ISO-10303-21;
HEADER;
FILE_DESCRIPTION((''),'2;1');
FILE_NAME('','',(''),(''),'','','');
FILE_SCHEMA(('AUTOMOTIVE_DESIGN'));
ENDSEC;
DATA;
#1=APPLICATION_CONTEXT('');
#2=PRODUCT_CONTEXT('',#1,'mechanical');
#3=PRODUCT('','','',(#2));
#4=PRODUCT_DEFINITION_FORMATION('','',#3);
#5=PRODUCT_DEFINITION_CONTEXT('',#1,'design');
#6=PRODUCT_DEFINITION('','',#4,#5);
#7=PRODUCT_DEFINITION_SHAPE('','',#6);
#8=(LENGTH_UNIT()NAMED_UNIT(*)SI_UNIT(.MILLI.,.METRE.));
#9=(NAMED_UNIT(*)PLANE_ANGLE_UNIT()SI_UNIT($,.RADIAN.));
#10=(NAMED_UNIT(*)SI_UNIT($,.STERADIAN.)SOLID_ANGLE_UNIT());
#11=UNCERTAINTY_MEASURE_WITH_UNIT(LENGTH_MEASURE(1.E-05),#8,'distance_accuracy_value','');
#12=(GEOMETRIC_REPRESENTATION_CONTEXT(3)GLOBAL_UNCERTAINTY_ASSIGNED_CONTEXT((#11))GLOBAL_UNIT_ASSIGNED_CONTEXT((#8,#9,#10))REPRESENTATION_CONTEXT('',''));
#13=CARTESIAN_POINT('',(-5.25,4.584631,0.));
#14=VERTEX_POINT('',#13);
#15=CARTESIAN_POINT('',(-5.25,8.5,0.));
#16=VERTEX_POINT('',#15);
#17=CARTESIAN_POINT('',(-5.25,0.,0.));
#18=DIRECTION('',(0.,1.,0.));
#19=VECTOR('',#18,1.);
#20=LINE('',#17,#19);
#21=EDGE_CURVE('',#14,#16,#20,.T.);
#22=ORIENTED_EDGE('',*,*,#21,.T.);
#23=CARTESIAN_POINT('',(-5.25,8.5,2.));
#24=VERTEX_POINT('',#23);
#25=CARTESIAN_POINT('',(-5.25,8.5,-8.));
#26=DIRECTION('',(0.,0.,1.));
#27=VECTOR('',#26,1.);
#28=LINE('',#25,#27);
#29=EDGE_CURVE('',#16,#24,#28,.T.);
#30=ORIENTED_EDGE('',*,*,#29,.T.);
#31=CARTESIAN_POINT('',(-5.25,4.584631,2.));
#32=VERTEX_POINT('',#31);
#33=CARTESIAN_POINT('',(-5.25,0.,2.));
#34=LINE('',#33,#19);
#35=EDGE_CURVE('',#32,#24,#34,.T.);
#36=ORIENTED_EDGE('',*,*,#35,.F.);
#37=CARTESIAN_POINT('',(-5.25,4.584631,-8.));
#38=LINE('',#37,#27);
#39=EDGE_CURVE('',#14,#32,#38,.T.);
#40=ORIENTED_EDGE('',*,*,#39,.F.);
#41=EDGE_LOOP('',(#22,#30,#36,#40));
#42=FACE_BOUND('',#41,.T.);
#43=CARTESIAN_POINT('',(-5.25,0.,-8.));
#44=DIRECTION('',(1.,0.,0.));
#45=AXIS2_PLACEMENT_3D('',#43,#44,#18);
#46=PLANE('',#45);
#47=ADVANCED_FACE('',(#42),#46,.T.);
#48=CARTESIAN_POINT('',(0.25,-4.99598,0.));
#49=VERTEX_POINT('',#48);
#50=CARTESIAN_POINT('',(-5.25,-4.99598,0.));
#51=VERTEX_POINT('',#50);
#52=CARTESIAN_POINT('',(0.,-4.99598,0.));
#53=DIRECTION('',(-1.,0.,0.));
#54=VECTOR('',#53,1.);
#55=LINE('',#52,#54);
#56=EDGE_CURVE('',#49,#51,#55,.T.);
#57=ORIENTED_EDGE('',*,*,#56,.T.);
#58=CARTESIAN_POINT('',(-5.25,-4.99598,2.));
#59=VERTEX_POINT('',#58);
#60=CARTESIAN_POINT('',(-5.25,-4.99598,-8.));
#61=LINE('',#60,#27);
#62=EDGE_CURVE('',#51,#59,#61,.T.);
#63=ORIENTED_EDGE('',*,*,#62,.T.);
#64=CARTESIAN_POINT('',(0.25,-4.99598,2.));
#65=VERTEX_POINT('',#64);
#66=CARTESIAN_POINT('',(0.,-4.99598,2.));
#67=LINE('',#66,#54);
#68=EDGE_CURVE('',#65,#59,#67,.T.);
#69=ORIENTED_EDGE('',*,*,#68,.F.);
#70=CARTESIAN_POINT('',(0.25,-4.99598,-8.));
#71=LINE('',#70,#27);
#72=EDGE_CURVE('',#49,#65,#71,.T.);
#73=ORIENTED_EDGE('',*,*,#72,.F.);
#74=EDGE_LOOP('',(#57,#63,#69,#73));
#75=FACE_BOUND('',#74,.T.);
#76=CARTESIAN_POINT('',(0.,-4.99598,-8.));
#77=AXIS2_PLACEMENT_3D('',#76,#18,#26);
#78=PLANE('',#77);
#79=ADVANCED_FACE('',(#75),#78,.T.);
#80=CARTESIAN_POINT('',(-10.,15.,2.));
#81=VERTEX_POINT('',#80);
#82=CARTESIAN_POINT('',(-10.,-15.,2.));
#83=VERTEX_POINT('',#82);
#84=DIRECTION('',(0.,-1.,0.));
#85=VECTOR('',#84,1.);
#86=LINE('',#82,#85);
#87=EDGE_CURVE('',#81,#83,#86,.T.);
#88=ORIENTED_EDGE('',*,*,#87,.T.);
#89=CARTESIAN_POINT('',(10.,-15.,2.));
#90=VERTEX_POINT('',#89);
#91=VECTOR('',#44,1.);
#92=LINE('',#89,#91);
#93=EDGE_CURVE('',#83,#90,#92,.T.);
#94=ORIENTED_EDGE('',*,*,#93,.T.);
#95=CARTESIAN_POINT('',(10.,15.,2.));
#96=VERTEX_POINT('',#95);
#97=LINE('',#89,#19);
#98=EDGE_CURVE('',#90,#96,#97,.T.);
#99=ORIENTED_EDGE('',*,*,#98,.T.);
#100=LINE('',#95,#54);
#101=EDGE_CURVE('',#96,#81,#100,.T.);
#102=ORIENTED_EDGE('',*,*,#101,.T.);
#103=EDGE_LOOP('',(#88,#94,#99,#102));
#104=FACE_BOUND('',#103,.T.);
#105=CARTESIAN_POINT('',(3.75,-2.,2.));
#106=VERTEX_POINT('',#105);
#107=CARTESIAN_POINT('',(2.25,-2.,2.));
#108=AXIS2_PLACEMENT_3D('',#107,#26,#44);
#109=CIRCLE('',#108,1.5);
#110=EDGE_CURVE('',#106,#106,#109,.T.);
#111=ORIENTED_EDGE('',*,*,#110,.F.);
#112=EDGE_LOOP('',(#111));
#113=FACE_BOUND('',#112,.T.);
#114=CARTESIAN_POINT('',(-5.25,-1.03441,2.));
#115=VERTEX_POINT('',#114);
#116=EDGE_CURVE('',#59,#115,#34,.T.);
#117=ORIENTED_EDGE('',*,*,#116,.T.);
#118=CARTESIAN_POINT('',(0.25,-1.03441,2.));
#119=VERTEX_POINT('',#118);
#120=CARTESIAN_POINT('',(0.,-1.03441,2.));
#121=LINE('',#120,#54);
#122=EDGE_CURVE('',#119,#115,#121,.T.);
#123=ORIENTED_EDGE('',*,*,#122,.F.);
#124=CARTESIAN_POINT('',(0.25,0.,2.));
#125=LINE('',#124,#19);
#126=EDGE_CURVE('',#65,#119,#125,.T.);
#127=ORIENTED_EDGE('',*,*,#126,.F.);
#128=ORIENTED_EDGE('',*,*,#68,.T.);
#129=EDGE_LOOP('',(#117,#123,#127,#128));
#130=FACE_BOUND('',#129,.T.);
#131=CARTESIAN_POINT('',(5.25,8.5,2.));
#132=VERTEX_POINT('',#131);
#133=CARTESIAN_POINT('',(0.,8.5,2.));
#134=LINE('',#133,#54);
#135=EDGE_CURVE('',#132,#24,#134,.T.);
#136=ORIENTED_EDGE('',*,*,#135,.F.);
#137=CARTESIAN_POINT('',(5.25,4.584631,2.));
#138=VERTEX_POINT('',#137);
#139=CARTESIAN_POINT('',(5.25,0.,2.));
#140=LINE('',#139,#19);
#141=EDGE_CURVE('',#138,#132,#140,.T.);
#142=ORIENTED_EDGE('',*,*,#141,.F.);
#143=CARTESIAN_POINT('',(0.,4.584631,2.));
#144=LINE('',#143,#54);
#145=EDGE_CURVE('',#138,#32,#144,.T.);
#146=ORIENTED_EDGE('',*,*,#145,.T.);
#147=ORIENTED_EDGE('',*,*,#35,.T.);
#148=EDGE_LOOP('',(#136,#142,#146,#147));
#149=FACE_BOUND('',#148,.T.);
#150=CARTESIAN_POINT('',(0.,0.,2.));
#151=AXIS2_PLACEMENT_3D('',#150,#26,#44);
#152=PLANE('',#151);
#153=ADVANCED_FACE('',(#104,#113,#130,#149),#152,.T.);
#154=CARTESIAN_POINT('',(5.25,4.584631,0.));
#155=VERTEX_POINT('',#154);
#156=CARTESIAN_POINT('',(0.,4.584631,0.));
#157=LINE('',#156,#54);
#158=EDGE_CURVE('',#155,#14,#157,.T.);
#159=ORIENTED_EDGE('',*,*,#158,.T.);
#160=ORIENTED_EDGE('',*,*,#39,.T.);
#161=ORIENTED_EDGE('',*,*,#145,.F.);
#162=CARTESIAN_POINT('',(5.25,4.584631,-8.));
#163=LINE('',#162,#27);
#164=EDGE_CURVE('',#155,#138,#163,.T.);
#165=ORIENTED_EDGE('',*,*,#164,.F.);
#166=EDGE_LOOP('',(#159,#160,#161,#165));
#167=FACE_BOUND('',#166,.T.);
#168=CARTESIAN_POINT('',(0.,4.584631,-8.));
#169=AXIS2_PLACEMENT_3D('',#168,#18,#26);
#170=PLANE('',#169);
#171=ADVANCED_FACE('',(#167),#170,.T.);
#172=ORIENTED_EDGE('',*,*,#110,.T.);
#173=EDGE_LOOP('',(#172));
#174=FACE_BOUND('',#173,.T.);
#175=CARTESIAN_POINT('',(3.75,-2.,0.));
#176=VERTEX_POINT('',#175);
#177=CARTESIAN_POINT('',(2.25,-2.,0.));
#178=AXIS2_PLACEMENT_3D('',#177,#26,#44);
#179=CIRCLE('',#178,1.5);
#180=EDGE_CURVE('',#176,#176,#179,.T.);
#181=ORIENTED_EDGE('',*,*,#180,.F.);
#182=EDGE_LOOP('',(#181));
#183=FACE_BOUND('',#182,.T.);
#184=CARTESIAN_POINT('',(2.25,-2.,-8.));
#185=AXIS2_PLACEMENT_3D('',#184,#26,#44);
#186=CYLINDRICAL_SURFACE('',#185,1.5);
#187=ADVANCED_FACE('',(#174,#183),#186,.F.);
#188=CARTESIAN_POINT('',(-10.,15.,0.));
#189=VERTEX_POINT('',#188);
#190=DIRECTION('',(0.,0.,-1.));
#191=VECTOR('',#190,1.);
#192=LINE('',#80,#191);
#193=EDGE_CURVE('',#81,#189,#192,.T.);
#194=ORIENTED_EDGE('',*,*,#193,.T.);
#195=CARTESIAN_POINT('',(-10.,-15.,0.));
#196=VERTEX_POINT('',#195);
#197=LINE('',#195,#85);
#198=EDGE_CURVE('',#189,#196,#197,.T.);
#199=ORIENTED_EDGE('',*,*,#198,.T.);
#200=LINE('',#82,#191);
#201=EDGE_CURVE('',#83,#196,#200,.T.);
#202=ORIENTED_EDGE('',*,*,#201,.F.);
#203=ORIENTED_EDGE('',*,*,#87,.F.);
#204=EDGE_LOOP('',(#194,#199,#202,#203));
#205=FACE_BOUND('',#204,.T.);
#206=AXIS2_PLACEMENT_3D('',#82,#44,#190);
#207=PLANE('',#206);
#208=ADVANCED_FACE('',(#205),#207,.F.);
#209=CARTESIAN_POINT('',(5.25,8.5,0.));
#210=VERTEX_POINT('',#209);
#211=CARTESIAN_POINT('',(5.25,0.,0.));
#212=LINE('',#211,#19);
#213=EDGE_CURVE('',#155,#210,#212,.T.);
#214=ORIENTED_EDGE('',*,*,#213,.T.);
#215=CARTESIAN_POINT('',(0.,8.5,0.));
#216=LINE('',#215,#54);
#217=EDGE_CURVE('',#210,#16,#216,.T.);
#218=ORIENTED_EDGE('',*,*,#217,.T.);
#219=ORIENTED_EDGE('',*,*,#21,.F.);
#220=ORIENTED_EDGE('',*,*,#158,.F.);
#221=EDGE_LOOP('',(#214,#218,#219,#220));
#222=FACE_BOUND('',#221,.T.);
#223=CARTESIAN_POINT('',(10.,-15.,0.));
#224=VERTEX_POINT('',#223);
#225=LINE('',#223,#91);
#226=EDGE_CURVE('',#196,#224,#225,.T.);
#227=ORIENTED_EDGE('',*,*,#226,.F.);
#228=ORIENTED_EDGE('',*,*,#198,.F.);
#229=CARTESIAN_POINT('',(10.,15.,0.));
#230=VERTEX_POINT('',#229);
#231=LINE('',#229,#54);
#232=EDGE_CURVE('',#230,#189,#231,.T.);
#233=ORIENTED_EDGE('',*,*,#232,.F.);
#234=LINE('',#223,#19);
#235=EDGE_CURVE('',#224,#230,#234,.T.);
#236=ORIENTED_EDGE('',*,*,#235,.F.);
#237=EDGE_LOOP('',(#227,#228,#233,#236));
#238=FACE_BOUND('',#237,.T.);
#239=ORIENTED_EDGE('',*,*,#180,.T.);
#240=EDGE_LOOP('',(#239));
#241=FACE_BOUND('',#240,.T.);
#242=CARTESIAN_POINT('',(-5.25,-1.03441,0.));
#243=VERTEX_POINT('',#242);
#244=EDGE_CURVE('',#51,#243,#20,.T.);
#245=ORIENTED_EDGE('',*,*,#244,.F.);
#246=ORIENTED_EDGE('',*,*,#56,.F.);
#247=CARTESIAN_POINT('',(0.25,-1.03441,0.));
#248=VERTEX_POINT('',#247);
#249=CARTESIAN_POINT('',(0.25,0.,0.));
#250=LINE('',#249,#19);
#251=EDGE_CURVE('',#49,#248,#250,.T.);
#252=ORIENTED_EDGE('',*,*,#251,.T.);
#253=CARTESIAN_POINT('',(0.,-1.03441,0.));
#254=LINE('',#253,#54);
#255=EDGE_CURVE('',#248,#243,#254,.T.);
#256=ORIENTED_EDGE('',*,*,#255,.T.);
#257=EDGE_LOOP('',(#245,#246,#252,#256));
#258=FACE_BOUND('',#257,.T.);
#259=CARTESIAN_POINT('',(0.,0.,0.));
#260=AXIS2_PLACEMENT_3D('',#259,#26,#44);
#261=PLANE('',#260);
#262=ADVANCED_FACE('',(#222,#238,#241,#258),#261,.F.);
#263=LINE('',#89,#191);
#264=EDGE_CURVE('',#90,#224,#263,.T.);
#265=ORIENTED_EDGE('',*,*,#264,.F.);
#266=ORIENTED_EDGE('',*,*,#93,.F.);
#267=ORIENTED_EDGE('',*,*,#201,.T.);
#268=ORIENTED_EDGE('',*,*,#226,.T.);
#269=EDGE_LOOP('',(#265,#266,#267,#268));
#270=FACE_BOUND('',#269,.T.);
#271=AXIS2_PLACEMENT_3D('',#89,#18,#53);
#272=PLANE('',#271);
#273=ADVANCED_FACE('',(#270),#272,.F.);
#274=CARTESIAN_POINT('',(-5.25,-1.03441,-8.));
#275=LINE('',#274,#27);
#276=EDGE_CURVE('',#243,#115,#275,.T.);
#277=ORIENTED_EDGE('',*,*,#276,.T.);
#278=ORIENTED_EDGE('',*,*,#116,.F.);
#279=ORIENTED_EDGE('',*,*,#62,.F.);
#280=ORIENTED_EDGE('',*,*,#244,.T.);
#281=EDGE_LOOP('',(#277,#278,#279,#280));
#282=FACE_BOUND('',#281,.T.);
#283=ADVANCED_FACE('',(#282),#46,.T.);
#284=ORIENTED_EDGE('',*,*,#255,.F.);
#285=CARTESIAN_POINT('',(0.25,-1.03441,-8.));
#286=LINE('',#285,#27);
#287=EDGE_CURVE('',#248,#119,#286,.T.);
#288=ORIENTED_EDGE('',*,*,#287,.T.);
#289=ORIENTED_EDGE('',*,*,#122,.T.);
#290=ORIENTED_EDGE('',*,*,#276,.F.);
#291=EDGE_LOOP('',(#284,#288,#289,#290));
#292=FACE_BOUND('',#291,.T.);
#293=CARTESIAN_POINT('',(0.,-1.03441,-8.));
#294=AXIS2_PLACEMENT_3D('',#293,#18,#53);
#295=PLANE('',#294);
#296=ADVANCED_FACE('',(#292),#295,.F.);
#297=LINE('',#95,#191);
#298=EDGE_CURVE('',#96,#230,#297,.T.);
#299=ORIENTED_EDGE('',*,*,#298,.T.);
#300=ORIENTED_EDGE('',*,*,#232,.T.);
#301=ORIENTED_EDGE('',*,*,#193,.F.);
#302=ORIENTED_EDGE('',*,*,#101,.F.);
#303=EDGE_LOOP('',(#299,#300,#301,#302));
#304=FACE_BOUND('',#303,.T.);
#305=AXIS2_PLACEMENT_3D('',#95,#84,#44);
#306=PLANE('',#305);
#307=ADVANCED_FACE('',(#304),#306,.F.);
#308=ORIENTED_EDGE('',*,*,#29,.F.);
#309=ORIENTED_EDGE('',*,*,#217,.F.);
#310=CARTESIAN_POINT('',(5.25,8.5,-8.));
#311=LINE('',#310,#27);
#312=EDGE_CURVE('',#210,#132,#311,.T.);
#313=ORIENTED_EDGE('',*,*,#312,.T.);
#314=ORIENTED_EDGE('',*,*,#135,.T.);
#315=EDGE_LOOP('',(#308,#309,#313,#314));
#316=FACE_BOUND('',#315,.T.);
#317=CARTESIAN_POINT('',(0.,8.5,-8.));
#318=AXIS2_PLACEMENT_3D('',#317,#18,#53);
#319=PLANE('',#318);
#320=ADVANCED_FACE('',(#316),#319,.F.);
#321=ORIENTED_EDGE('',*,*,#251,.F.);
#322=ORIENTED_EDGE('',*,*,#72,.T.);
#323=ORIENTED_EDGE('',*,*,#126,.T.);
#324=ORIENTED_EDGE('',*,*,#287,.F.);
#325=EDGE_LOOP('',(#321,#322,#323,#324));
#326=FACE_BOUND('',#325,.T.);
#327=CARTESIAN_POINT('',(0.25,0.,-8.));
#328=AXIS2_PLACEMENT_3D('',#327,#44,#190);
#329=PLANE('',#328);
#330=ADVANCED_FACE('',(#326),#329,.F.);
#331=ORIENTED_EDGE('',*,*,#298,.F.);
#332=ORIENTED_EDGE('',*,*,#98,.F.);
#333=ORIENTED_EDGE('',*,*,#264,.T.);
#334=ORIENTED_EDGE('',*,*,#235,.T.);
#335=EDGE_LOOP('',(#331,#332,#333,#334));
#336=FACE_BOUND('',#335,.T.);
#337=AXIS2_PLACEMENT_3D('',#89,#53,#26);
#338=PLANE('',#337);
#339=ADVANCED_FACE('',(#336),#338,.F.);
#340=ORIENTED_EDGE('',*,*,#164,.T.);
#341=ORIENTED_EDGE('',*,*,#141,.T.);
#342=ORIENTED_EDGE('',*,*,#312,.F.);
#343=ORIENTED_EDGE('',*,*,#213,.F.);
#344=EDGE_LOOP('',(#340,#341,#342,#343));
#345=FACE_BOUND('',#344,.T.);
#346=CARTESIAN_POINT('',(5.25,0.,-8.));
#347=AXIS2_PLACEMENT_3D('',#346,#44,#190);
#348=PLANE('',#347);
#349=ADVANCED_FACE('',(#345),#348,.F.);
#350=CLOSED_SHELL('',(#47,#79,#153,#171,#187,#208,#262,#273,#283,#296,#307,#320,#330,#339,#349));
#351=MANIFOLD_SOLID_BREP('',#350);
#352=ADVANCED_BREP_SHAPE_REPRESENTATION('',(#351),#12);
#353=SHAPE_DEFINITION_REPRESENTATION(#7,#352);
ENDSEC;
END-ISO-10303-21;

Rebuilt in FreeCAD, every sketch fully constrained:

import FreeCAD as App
import Part
import Sketcher

V = App.Vector
Q = App.Units.Quantity

doc = App.newDocument("Part")
body = doc.addObject("PartDesign::Body", "Body")

# Sketch on XY plane
sketch1 = body.newObject("Sketcher::SketchObject", "Sketch")
sketch1.AttachmentSupport = (doc.getObject("XY_Plane"), [""])
sketch1.MapMode = "FlatFace"
sketch1.addGeometry([
    Part.LineSegment(V(-10, 15, 0), V(-10, -15, 0)),
    Part.LineSegment(V(-10, -15, 0), V(10, -15, 0)),
    Part.LineSegment(V(10, -15, 0), V(10, 15, 0)),
    Part.LineSegment(V(10, 15, 0), V(-10, 15, 0)),
], False)
sketch1.addConstraint([
    Sketcher.Constraint("Coincident", 0, 2, 1, 1),
    Sketcher.Constraint("Coincident", 1, 2, 2, 1),
    Sketcher.Constraint("Coincident", 2, 2, 3, 1),
    Sketcher.Constraint("Coincident", 3, 2, 0, 1),
    Sketcher.Constraint("Vertical", 0),
    Sketcher.Constraint("Horizontal", 1),
    Sketcher.Constraint("Vertical", 2),
    Sketcher.Constraint("Horizontal", 3),
    Sketcher.Constraint("Symmetric", 0, 2, 2, 2, -1, 1),
    Sketcher.Constraint("DistanceX", 1, 1, 1, 2, Q("20 mm")),
    Sketcher.Constraint("DistanceY", 0, 2, 0, 1, Q("30 mm")),
])
pad1 = body.newObject("PartDesign::Pad", "Pad")
pad1.Profile = sketch1
pad1.Length = 2

# Sketch on XY plane
sketch2 = body.newObject("Sketcher::SketchObject", "Sketch001")
sketch2.AttachmentSupport = (doc.getObject("XY_Plane"), [""])
sketch2.MapMode = "FlatFace"
sketch2.AttachmentOffset = App.Placement(V(0, 0, 2), App.Rotation())
sketch2.addGeometry([
    Part.LineSegment(V(-5.25, 8.5, 0), V(-5.25, 4.584631, 0)),  # 0
    Part.LineSegment(V(-5.25, 4.584631, 0), V(5.25, 4.584631, 0)),  # 1
    Part.LineSegment(V(5.25, 4.584631, 0), V(5.25, 8.5, 0)),  # 2
    Part.LineSegment(V(5.25, 8.5, 0), V(-5.25, 8.5, 0)),  # 3
    Part.LineSegment(V(-5.25, -1.03441, 0), V(-5.25, -4.99598, 0)),  # 4
    Part.LineSegment(V(-5.25, -4.99598, 0), V(0.25, -4.99598, 0)),  # 5
    Part.LineSegment(V(0.25, -4.99598, 0), V(0.25, -1.03441, 0)),  # 6
    Part.LineSegment(V(0.25, -1.03441, 0), V(-5.25, -1.03441, 0)),  # 7
    Part.Circle(V(2.25, -2, 0), V(0, 0, 1), 1.5),  # 8
], False)
sketch2.addConstraint([
    Sketcher.Constraint("Coincident", 0, 2, 1, 1),
    Sketcher.Constraint("Coincident", 1, 2, 2, 1),
    Sketcher.Constraint("Coincident", 2, 2, 3, 1),
    Sketcher.Constraint("Coincident", 3, 2, 0, 1),
    Sketcher.Constraint("Coincident", 4, 2, 5, 1),
    Sketcher.Constraint("Coincident", 5, 2, 6, 1),
    Sketcher.Constraint("Coincident", 6, 2, 7, 1),
    Sketcher.Constraint("Coincident", 7, 2, 4, 1),
    Sketcher.Constraint("Vertical", 0),
    Sketcher.Constraint("Horizontal", 1),
    Sketcher.Constraint("Vertical", 2),
    Sketcher.Constraint("Horizontal", 3),
    Sketcher.Constraint("Vertical", 4),
    Sketcher.Constraint("Horizontal", 5),
    Sketcher.Constraint("Vertical", 6),
    Sketcher.Constraint("Horizontal", 7),
    Sketcher.Constraint("Vertical", 3, 2, 4, 2),
    Sketcher.Constraint("Diameter", 8, Q("3 mm")),
    Sketcher.Constraint("DistanceX", 1, 1, 1, 2, Q("10.5 mm")),
    Sketcher.Constraint("DistanceX", 5, 1, 5, 2, Q("5.5 mm")),
    Sketcher.Constraint("DistanceY", 8, 3, -1, 1, Q("2 mm")),
    Sketcher.Constraint("DistanceX", 8, 3, 1, 2, Q("3 mm")),
    Sketcher.Constraint("DistanceY", -1, 1, 2, 2, Q("8.5 mm")),
    Sketcher.Constraint("DistanceX", -1, 1, 8, 3, Q("2.25 mm")),
    Sketcher.Constraint("DistanceY", 0, 2, 0, 1, Q("3.915369 mm")),
    Sketcher.Constraint("DistanceY", 4, 2, 4, 1, Q("3.96157 mm")),
    Sketcher.Constraint("DistanceY", 4, 2, -1, 1, Q("4.99598 mm")),
])
pocket1 = body.newObject("PartDesign::Pocket", "Pocket")
pocket1.Profile = sketch2
pocket1.Length = 10

doc.recompute()
